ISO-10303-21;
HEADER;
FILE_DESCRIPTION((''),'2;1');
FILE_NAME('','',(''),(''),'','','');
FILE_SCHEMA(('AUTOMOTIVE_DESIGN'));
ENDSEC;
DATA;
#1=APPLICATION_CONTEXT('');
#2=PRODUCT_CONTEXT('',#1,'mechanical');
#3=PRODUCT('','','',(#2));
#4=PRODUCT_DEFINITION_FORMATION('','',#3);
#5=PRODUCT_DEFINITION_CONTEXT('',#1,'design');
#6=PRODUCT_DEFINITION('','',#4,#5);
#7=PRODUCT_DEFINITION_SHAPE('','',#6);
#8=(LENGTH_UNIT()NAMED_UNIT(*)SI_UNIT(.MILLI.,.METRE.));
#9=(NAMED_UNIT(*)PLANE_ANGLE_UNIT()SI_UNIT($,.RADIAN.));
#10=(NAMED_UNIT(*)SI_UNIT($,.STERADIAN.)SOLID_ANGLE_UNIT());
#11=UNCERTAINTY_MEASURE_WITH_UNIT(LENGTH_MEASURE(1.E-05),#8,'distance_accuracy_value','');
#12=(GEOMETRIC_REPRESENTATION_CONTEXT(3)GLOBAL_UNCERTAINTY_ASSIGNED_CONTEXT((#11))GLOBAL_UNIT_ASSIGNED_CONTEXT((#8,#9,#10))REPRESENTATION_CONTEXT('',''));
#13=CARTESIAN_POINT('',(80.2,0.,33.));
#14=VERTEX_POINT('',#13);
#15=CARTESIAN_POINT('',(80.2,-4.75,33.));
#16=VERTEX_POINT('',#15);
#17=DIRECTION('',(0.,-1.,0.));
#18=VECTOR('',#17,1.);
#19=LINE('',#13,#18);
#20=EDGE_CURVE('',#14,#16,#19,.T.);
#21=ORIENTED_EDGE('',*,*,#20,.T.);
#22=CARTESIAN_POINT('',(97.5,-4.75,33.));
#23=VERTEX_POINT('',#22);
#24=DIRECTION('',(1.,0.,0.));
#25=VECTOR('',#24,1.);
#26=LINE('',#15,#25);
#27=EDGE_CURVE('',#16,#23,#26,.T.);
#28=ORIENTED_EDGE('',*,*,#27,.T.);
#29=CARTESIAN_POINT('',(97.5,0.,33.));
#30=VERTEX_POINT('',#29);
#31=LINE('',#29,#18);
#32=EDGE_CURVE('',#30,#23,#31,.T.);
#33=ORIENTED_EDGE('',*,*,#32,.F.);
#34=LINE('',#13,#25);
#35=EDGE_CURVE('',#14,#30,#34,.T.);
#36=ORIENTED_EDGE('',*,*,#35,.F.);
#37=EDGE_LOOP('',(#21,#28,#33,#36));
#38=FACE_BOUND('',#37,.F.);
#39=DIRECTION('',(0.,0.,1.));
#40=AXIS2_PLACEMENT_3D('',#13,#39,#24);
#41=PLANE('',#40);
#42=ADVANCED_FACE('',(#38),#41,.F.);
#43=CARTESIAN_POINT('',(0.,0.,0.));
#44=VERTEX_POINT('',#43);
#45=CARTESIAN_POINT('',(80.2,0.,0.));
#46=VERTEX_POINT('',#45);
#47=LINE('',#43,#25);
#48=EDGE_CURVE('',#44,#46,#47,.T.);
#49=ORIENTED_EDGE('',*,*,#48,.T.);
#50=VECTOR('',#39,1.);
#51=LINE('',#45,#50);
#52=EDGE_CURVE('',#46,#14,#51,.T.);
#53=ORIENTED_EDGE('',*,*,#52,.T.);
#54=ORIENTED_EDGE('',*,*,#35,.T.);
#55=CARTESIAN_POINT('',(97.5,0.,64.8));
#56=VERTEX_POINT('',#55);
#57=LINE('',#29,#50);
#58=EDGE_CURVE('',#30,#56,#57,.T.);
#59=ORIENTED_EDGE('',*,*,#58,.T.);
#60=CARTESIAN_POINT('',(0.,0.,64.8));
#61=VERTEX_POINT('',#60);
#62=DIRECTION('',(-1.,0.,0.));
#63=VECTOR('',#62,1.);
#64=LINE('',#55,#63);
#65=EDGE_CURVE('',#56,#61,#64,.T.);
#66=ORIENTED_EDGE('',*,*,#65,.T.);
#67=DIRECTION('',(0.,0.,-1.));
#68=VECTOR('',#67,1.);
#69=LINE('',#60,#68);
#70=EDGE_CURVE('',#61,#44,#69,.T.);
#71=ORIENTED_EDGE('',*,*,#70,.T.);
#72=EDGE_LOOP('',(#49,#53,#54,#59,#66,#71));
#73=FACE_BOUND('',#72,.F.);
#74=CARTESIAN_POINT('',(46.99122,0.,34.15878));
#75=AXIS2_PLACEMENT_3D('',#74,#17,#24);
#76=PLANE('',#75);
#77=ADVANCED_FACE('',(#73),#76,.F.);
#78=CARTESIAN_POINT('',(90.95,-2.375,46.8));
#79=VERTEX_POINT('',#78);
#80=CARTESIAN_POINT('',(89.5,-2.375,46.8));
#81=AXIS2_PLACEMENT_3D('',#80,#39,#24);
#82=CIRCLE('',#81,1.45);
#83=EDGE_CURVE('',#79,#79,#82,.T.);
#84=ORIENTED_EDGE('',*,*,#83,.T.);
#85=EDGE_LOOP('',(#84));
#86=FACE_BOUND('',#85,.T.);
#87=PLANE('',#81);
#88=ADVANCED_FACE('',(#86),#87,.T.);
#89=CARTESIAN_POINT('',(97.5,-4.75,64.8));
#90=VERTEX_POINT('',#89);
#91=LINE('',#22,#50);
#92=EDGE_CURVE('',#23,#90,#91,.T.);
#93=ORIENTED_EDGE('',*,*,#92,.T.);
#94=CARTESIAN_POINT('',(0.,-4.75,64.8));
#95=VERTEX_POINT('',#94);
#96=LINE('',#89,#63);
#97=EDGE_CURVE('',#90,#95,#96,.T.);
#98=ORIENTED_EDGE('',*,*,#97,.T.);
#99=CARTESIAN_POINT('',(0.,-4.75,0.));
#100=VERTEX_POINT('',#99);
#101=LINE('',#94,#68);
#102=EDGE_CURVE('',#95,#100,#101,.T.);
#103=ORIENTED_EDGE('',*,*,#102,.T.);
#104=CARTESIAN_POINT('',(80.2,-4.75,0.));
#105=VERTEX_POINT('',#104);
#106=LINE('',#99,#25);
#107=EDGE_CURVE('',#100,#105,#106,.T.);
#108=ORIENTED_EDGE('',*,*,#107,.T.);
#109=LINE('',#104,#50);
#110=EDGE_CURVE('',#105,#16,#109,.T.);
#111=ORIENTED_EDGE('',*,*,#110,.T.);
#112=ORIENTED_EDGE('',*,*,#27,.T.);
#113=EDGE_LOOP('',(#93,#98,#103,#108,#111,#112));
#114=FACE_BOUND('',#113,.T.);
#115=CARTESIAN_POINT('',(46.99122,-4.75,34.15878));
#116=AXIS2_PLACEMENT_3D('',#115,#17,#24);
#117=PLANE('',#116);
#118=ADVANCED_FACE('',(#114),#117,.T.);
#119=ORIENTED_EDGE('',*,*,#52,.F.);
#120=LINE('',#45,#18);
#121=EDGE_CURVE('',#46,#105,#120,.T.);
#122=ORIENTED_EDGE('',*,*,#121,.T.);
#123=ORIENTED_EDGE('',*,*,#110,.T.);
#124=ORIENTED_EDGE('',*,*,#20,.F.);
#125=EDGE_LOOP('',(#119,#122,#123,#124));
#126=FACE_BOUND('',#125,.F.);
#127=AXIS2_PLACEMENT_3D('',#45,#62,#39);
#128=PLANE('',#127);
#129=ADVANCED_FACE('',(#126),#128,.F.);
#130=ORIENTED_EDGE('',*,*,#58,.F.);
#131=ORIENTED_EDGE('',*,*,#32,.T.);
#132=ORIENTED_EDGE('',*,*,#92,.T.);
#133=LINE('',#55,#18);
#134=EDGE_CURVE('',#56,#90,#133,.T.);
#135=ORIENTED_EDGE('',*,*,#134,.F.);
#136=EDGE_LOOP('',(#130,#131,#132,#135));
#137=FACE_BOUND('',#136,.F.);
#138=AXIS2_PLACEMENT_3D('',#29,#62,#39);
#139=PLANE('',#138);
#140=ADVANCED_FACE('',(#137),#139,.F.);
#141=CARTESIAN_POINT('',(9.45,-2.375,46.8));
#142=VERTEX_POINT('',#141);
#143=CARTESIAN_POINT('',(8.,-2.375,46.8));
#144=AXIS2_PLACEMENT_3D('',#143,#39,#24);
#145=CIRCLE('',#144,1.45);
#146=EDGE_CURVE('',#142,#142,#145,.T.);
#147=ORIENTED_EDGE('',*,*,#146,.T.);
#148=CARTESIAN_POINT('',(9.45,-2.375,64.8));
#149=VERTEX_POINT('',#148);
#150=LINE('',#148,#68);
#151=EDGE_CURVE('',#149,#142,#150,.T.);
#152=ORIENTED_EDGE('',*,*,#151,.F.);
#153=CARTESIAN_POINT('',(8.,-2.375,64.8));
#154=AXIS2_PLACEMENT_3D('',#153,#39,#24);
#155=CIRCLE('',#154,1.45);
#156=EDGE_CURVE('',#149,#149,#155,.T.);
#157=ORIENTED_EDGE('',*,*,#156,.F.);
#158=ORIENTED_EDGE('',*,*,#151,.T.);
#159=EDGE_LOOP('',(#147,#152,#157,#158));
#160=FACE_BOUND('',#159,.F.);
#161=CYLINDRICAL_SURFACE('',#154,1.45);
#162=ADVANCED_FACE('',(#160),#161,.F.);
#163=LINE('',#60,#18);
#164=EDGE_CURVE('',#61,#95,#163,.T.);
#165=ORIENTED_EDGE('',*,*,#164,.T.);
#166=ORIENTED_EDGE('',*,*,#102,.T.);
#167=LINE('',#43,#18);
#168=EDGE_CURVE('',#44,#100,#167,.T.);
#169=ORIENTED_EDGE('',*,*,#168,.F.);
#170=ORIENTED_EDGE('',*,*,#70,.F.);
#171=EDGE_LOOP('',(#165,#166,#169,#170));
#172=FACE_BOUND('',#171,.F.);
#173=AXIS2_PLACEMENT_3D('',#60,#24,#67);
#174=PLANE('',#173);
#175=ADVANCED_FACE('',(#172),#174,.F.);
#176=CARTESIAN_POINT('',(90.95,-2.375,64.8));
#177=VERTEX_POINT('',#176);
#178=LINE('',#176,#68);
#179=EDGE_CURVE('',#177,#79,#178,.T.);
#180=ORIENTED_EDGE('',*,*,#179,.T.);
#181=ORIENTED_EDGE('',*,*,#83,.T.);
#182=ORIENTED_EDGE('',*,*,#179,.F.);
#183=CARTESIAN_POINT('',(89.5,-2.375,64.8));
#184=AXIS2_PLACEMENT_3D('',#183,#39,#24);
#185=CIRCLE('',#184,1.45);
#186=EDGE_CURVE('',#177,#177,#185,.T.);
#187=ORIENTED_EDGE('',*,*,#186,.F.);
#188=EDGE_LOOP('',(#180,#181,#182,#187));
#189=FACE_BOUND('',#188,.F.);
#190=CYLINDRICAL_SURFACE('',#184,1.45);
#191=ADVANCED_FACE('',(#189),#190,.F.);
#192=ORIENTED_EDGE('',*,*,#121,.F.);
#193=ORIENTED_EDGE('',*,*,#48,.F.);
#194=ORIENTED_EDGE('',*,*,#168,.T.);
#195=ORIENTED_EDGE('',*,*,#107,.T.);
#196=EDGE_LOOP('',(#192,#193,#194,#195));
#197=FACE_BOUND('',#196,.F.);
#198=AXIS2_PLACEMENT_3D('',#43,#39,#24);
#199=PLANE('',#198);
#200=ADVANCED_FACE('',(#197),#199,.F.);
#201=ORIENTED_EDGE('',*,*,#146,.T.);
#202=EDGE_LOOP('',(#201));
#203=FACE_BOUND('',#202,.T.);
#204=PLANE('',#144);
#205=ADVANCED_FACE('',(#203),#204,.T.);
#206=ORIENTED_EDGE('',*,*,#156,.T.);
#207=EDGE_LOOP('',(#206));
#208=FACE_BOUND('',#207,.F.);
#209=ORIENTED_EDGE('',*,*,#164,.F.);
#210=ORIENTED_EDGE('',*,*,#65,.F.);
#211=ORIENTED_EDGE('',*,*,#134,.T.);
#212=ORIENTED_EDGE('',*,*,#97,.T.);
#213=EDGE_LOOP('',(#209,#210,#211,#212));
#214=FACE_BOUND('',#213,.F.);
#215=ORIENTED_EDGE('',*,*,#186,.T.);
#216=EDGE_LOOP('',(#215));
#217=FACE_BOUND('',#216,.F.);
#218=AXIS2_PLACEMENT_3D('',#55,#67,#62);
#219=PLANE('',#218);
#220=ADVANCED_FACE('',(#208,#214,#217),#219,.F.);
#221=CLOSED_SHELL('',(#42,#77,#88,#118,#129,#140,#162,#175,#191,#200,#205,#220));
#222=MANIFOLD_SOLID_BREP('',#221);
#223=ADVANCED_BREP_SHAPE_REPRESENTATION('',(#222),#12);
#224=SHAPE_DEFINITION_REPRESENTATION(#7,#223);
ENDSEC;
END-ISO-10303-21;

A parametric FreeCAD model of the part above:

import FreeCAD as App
import Part
import Sketcher

V = App.Vector


def add_polygon(sketch, points):
    """Adds a closed chain of lines whose ends are joined by coincident constraints."""
    first, n = sketch.GeometryCount, len(points)
    for a, b in zip(points, points[1:] + points[:1]):
        sketch.addGeometry(Part.LineSegment(App.Vector(*a, 0), App.Vector(*b, 0)), False)
    for i in range(n):
        sketch.addConstraint(Sketcher.Constraint("Coincident", first + i, 2, first + (i + 1) % n, 1))

doc = App.newDocument("Part")
params = doc.addObject("Spreadsheet::Sheet", "Params")
for row, (alias, value) in enumerate([
    ("sketch1_height", "33 mm"),
    ("sketch1_width", "80.2 mm"),
    ("sketch1_width2", "17.3 mm"),
    ("sketch1_height2", "64.8 mm"),
    ("pad1_length", "4.75 mm"),
    ("sketch2_diameter", "2.9 mm"),
    ("pocket1_length", "18 mm"),
], start=1):
    params.set(f"A{row}", alias)
    params.set(f"B{row}", "=" + value)
    params.setAlias(f"B{row}", alias)

body = doc.addObject("PartDesign::Body", "Body")

sketch1 = body.newObject("Sketcher::SketchObject", "Sketch")
sketch1.AttachmentSupport = (doc.getObject("XZ_Plane"), [""])
sketch1.MapMode = "FlatFace"
add_polygon(sketch1, [(0, 64.8), (0, 0), (80.2, 0), (80.2, 33), (97.5, 33), (97.5, 64.8)])
sketch1.addConstraint(Sketcher.Constraint("Vertical", 0))
sketch1.addConstraint(Sketcher.Constraint("Horizontal", 1))
sketch1.addConstraint(Sketcher.Constraint("Vertical", 2))
sketch1.addConstraint(Sketcher.Constraint("Horizontal", 3))
sketch1.addConstraint(Sketcher.Constraint("Vertical", 4))
sketch1.addConstraint(Sketcher.Constraint("Horizontal", 5))
sketch1.addConstraint(Sketcher.Constraint("Coincident", 0, 2, -1, 1))
sketch1.addConstraint(Sketcher.Constraint("DistanceY", 2, 1, 2, 2, 33.0))
sketch1.addConstraint(Sketcher.Constraint("DistanceX", 1, 1, 1, 2, 80.2))
sketch1.addConstraint(Sketcher.Constraint("DistanceX", 3, 1, 3, 2, 17.3))
sketch1.addConstraint(Sketcher.Constraint("DistanceY", 0, 2, 0, 1, 64.8))
sketch1.setExpression("Constraints[13]", "Params.sketch1_height")
sketch1.setExpression("Constraints[14]", "Params.sketch1_width")
sketch1.setExpression("Constraints[15]", "Params.sketch1_width2")
sketch1.setExpression("Constraints[16]", "Params.sketch1_height2")
pad1 = body.newObject("PartDesign::Pad", "Pad")
pad1.Profile = sketch1
pad1.setExpression("Length", "Params.pad1_length")

sketch2 = body.newObject("Sketcher::SketchObject", "Sketch001")
sketch2.AttachmentSupport = (doc.getObject("XY_Plane"), [""])
sketch2.MapMode = "FlatFace"
sketch2.AttachmentOffset = App.Placement(V(0, 0, 64.8), App.Rotation())
sketch2.addGeometry(Part.Circle(V(89.5, -2.375, 0), V(0, 0, 1), 1.45), False)
sketch2.addGeometry(Part.Circle(V(8, -2.375, 0), V(0, 0, 1), 1.45), False)
sketch2.addConstraint(Sketcher.Constraint("Equal", 0, 1))
sketch2.addConstraint(Sketcher.Constraint("Horizontal", 0, 3, 1, 3))
sketch2.addConstraint(Sketcher.Constraint("Diameter", 0, 2.9))
sketch2.addConstraint(Sketcher.Constraint("DistanceX", -1, 1, 1, 3, 8.0))
sketch2.addConstraint(Sketcher.Constraint("DistanceX", -1, 1, 0, 3, 89.5))
sketch2.addConstraint(Sketcher.Constraint("DistanceY", 0, 3, -1, 1, 2.375))
sketch2.setExpression("Constraints[2]", "Params.sketch2_diameter")
pocket1 = body.newObject("PartDesign::Pocket", "Pocket")
pocket1.Profile = sketch2
pocket1.setExpression("Length", "Params.pocket1_length")

doc.recompute()
